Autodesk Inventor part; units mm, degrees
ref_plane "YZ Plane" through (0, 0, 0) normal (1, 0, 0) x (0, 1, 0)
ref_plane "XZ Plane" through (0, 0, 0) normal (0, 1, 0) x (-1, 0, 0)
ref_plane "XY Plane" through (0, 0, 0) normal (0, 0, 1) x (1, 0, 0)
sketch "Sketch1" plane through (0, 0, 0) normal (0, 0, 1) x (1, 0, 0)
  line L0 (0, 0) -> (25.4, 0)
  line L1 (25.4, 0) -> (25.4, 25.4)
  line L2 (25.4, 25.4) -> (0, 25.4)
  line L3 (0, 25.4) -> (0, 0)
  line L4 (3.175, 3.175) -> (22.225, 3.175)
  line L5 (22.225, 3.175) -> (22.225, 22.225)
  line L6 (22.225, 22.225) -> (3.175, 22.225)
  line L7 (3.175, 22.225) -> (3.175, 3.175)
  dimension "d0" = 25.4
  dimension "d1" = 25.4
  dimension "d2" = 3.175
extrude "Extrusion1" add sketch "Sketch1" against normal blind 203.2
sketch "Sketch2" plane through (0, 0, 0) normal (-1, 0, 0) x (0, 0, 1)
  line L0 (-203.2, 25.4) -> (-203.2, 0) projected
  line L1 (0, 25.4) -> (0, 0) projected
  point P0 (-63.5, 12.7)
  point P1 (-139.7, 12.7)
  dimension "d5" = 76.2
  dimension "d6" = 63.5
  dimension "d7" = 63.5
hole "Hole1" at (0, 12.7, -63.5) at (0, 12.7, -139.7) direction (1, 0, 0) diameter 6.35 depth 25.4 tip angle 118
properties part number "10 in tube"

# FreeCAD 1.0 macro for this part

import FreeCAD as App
import Part
import Sketcher
from FreeCAD import Vector
Q = App.Units.Quantity

doc = App.newDocument("Part")
body = doc.addObject("PartDesign::Body", "Body")

# Sketch on XY plane
sketch1 = doc.addObject("Sketcher::SketchObject", "Sketch")
body.addObject(sketch1)
sketch1.AttachmentSupport = (doc.XY_Plane, [""])
sketch1.MapMode = "FlatFace"
sketch1.addGeometry([
    Part.LineSegment(Vector(0, 25, 0), Vector(0, 0, 0)),  # 0
    Part.LineSegment(Vector(0, 0, 0), Vector(25, 0, 0)),  # 1
    Part.LineSegment(Vector(25, 0, 0), Vector(25, 25, 0)),  # 2
    Part.LineSegment(Vector(25, 25, 0), Vector(0, 25, 0)),  # 3
    Part.LineSegment(Vector(22, 3, 0), Vector(3, 3, 0)),  # 4
    Part.LineSegment(Vector(3, 3, 0), Vector(3, 22, 0)),  # 5
    Part.LineSegment(Vector(3, 22, 0), Vector(22, 22, 0)),  # 6
    Part.LineSegment(Vector(22, 22, 0), Vector(22, 3, 0)),  # 7
], False)
sketch1.addConstraint([
    Sketcher.Constraint("Coincident", 0, 2, 1, 1),
    Sketcher.Constraint("Coincident", 1, 2, 2, 1),
    Sketcher.Constraint("Coincident", 2, 2, 3, 1),
    Sketcher.Constraint("Coincident", 3, 2, 0, 1),
    Sketcher.Constraint("Coincident", 4, 2, 5, 1),
    Sketcher.Constraint("Coincident", 5, 2, 6, 1),
    Sketcher.Constraint("Coincident", 6, 2, 7, 1),
    Sketcher.Constraint("Coincident", 7, 2, 4, 1),
    Sketcher.Constraint("Vertical", 0),
    Sketcher.Constraint("Horizontal", 1),
    Sketcher.Constraint("Vertical", 2),
    Sketcher.Constraint("Horizontal", 3),
    Sketcher.Constraint("Horizontal", 4),
    Sketcher.Constraint("Vertical", 5),
    Sketcher.Constraint("Horizontal", 6),
    Sketcher.Constraint("Vertical", 7),
    Sketcher.Constraint("Coincident", 0, 2, -1, 1),
    Sketcher.Constraint("Equal", 3, 0),
    Sketcher.Constraint("Equal", 6, 5),
    Sketcher.Constraint("DistanceX", 1, 1, 1, 2, Q("1 in")),
    Sketcher.Constraint("DistanceX", -1, 1, 4, 2, Q("0.125 in")),
    Sketcher.Constraint("DistanceY", -1, 1, 4, 2, Q("0.125 in")),
    Sketcher.Constraint("DistanceY", 5, 2, 3, 2, Q("0.125 in")),
])
pad1 = doc.addObject("PartDesign::Pad", "Pad")
body.addObject(pad1)
pad1.Profile = sketch1
pad1.Length = Q("8 in")
pad1.Reversed = True

# Sketch on YZ plane
sketch2 = doc.addObject("Sketcher::SketchObject", "Sketch001")
body.addObject(sketch2)
sketch2.AttachmentSupport = (doc.YZ_Plane, [""])
sketch2.MapMode = "FlatFace"
sketch2.addGeometry([
    Part.Circle(Vector(12.7, -63.5, 0), Vector(0, 0, 1), 3.2),
    Part.Circle(Vector(12.7, -139.7, 0), Vector(0, 0, 1), 3.2),
], False)
sketch2.addConstraint([
    Sketcher.Constraint("Equal", 0, 1),
    Sketcher.Constraint("Vertical", 0, 3, 1, 3),
    Sketcher.Constraint("Diameter", 0, Q("0.25 in")),
    Sketcher.Constraint("DistanceY", 1, 3, 0, 3, Q("3 in")),
    Sketcher.Constraint("DistanceX", -1, 1, 0, 3, Q("0.5 in")),
    Sketcher.Constraint("DistanceY", 0, 3, -1, 1, Q("2.5 in")),
])
doc.recompute()
hole = doc.addObject("PartDesign::Hole", "Hole")
body.addObject(hole)
hole.Profile = sketch2
hole.ThreadType = "None"
hole.Diameter = Q("0.25 in")
hole.DepthType = "Dimension"
hole.Depth = Q("1 in")
hole.DrillPoint = "Angled"
hole.DrillPointAngle = 118
hole.Reversed = True

doc.recompute()
